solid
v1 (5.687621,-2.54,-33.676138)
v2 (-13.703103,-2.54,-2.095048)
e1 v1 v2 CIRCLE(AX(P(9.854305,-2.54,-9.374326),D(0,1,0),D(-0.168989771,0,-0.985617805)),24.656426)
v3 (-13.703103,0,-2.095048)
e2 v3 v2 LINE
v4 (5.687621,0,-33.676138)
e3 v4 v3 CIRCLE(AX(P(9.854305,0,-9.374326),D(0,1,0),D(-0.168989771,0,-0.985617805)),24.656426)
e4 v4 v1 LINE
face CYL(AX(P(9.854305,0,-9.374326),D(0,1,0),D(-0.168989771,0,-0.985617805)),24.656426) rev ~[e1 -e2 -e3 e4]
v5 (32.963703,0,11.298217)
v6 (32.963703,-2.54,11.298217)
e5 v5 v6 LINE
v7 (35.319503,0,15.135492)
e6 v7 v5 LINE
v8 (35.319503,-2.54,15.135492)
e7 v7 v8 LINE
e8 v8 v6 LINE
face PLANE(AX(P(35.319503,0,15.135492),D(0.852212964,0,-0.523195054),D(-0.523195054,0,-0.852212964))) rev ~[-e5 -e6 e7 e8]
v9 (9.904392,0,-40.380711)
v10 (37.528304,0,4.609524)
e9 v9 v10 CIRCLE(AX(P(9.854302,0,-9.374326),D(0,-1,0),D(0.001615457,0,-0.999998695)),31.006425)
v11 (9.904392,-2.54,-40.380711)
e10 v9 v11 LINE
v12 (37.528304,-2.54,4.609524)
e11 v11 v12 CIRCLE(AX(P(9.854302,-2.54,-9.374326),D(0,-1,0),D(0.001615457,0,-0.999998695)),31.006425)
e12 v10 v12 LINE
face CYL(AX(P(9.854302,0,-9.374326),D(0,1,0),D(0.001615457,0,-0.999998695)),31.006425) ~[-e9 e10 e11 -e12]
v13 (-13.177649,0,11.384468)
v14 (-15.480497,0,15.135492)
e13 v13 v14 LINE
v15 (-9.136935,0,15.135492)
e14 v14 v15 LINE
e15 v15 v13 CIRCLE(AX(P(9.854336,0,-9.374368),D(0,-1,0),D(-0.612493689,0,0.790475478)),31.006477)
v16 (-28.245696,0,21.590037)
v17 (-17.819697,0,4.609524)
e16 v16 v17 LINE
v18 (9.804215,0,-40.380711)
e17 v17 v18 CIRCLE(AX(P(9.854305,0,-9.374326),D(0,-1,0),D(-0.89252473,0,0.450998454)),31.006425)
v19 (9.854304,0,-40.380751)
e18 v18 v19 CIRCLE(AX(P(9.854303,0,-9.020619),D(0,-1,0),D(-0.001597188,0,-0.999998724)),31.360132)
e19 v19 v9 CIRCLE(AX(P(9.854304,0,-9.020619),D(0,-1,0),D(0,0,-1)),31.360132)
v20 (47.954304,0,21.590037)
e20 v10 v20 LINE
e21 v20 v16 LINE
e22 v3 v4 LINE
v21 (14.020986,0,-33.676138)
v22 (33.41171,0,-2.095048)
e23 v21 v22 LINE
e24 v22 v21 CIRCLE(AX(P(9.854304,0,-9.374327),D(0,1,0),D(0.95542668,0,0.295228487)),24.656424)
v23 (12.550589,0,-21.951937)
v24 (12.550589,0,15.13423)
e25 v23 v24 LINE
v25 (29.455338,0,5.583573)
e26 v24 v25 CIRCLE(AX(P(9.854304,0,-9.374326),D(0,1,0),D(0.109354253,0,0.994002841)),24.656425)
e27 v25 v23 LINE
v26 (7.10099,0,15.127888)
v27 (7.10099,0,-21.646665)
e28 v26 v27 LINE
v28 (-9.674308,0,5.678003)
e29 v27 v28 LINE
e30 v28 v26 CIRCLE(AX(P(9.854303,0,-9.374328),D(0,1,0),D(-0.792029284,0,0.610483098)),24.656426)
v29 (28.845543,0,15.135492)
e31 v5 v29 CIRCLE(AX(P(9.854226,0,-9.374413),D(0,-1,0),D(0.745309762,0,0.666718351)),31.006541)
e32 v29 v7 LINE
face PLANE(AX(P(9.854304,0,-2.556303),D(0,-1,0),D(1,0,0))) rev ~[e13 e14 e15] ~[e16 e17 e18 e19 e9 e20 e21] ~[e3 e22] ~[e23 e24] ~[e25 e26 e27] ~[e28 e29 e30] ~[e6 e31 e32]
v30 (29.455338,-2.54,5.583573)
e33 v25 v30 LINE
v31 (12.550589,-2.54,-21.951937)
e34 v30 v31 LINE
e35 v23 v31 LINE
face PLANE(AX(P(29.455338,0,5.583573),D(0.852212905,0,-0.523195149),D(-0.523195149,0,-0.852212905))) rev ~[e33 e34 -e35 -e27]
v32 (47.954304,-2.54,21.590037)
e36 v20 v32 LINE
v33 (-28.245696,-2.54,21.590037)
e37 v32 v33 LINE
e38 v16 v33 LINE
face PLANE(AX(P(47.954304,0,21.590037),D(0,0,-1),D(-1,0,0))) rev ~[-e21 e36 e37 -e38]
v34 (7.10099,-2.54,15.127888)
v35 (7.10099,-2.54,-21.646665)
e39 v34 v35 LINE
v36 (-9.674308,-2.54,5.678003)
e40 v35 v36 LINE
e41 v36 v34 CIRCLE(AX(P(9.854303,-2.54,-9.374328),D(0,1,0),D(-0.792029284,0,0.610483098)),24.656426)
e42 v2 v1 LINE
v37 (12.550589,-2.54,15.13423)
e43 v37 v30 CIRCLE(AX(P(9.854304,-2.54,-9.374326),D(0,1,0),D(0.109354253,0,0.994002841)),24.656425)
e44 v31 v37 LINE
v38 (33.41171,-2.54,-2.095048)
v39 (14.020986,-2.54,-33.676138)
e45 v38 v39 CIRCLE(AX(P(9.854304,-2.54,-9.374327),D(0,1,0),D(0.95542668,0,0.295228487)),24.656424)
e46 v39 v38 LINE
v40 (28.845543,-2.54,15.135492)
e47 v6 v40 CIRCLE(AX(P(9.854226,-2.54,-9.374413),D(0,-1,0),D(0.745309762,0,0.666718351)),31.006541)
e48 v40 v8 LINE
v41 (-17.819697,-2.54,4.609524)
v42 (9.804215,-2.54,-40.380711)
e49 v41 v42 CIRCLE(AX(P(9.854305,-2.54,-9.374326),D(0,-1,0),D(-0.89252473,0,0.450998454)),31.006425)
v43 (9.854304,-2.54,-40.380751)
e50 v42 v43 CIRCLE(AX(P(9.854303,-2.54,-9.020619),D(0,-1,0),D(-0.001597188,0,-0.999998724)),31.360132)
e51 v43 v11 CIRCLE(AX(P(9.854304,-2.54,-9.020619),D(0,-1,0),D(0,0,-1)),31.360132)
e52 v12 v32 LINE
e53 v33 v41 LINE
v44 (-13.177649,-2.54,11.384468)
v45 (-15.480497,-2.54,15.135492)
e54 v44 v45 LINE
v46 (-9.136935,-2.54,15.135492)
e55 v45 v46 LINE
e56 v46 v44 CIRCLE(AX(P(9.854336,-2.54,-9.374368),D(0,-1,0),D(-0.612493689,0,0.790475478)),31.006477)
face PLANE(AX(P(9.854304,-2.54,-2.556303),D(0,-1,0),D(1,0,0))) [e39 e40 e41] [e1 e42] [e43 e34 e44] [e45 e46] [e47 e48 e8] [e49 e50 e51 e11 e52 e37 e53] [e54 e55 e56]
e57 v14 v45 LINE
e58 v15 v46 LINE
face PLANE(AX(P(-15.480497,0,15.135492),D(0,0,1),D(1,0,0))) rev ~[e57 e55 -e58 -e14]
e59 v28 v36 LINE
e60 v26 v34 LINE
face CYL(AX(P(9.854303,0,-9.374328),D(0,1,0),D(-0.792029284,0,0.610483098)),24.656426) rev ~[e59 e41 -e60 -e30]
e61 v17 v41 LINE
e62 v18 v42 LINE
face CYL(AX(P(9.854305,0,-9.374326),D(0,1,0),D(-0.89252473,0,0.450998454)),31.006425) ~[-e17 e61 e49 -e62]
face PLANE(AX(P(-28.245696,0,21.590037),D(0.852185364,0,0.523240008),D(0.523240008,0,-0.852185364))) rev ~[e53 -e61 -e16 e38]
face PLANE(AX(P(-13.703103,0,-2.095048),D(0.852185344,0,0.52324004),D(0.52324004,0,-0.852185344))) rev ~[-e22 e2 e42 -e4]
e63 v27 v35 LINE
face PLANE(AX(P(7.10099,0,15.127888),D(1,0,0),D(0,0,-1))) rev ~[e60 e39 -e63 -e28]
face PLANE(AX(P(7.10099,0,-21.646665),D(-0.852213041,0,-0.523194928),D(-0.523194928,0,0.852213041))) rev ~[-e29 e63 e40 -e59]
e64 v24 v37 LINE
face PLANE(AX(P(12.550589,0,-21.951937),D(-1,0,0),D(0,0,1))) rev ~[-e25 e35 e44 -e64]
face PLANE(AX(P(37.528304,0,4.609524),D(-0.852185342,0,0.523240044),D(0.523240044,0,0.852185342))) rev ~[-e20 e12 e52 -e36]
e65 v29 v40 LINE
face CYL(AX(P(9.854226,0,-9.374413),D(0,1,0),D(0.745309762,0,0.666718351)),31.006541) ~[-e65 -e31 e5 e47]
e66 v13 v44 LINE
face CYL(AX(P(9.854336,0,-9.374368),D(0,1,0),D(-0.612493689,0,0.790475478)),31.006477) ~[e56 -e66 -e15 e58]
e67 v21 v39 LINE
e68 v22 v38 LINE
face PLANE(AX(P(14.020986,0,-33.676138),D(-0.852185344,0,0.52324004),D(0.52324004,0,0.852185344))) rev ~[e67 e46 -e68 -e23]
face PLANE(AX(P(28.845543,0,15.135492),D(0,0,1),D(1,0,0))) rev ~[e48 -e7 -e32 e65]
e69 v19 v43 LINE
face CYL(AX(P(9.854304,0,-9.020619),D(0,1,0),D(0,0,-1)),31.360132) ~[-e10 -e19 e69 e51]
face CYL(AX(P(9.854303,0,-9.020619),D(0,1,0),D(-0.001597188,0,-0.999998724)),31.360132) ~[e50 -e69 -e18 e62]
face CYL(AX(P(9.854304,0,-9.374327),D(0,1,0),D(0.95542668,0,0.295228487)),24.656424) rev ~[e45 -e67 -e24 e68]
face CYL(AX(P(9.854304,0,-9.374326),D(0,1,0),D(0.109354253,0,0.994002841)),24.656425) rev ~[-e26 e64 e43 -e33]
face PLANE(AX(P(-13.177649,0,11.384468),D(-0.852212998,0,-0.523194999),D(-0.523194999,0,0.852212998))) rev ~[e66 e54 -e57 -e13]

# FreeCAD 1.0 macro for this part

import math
import FreeCAD as App
import Part
import Sketcher
Q = App.Units.Quantity

doc = App.newDocument("Part")
body = doc.addObject("PartDesign::Body", "Body")

sketch1 = body.newObject("Sketcher::SketchObject", "Sketch")
sketch1.AttachmentSupport = (doc.getObject("XZ_Plane"), [""])
sketch1.MapMode = "FlatFace"
sketch1.addGeometry([
    Part.LineSegment(App.Vector(-28.245696, 21.590037, 0), App.Vector(-17.819697, 4.609524, 0)),
    Part.ArcOfCircle(Part.Circle(App.Vector(9.854305, -9.374326, 0), App.Vector(0, 0, 1), 31.006425), math.radians(153.192238), math.radians(269.907441)),
    Part.ArcOfCircle(Part.Circle(App.Vector(9.854303, -9.020619, 0), App.Vector(0, 0, 1), 31.360132), math.radians(-90.091512), math.radians(-89.999998)),
    Part.ArcOfCircle(Part.Circle(App.Vector(9.854304, -9.020619, 0), App.Vector(0, 0, 1), 31.360132), math.radians(-90), math.radians(-89.908488)),
    Part.ArcOfCircle(Part.Circle(App.Vector(9.854302, -9.374326, 0), App.Vector(0, 0, 1), 31.006425), math.radians(-89.907441), math.radians(26.807762)),
    Part.LineSegment(App.Vector(37.528304, 4.609524, 0), App.Vector(47.954304, 21.590037, 0)),
    Part.LineSegment(App.Vector(47.954304, 21.590037, 0), App.Vector(-28.245696, 21.590037, 0)),
    Part.LineSegment(App.Vector(-13.703103, -2.095048, 0), App.Vector(5.687621, -33.676138, 0)),
    Part.ArcOfCircle(Part.Circle(App.Vector(9.854305, -9.374326, 0), App.Vector(0, 0, 1), 24.656426), math.radians(162.828765), math.radians(260.270913)),
    Part.LineSegment(App.Vector(14.020986, -33.676138, 0), App.Vector(33.41171, -2.095048, 0)),
    Part.ArcOfCircle(Part.Circle(App.Vector(9.854304, -9.374327, 0), App.Vector(0, 0, 1), 24.656424), math.radians(-80.270917), math.radians(17.171239)),
    Part.LineSegment(App.Vector(7.10099, 15.127888, 0), App.Vector(7.10099, -21.646665, 0)),
    Part.LineSegment(App.Vector(7.10099, -21.646665, 0), App.Vector(-9.674308, 5.678003, 0)),
    Part.ArcOfCircle(Part.Circle(App.Vector(9.854303, -9.374328, 0), App.Vector(0, 0, 1), 24.656426), math.radians(96.411429), math.radians(142.375558)),
    Part.ArcOfCircle(Part.Circle(App.Vector(9.854336, -9.374368, 0), App.Vector(0, 0, 1), 31.006477), math.radians(127.770032), math.radians(137.971515)),
    Part.LineSegment(App.Vector(-13.177649, 11.384468, 0), App.Vector(-15.480497, 15.135492, 0)),
    Part.LineSegment(App.Vector(-15.480497, 15.135492, 0), App.Vector(-9.136935, 15.135492, 0)),
    Part.LineSegment(App.Vector(12.550589, -21.951937, 0), App.Vector(12.550589, 15.13423, 0)),
    Part.ArcOfCircle(Part.Circle(App.Vector(9.854304, -9.374326, 0), App.Vector(0, 0, 1), 24.656425), math.radians(37.3479), math.radians(83.721908)),
    Part.LineSegment(App.Vector(29.455338, 5.583573, 0), App.Vector(12.550589, -21.951937, 0)),
    Part.ArcOfCircle(Part.Circle(App.Vector(9.854226, -9.374413, 0), App.Vector(0, 0, 1), 31.006541), math.radians(41.814288), math.radians(52.229952)),
    Part.LineSegment(App.Vector(28.845543, 15.135492, 0), App.Vector(35.319503, 15.135492, 0)),
    Part.LineSegment(App.Vector(35.319503, 15.135492, 0), App.Vector(32.963703, 11.298217, 0)),
], False)
sketch1.addConstraint([
    Sketcher.Constraint("Coincident", 0, 2, 1, 1),
    Sketcher.Constraint("Coincident", 1, 2, 2, 1),
    Sketcher.Constraint("Tangent", 2, 2, 3, 1),
    Sketcher.Constraint("Coincident", 3, 2, 4, 1),
    Sketcher.Constraint("Coincident", 4, 2, 5, 1),
    Sketcher.Constraint("Coincident", 5, 2, 6, 1),
    Sketcher.Constraint("Coincident", 6, 2, 0, 1),
    Sketcher.Constraint("Coincident", 7, 1, 8, 1),
    Sketcher.Constraint("Coincident", 8, 2, 7, 2),
    Sketcher.Constraint("Coincident", 9, 1, 10, 1),
    Sketcher.Constraint("Coincident", 10, 2, 9, 2),
    Sketcher.Constraint("Coincident", 11, 2, 12, 1),
    Sketcher.Constraint("Coincident", 12, 2, 13, 2),
    Sketcher.Constraint("Coincident", 13, 1, 11, 1),
    Sketcher.Constraint("Coincident", 14, 2, 15, 1),
    Sketcher.Constraint("Coincident", 15, 2, 16, 1),
    Sketcher.Constraint("Coincident", 16, 2, 14, 1),
    Sketcher.Constraint("Coincident", 17, 2, 18, 2),
    Sketcher.Constraint("Coincident", 18, 1, 19, 1),
    Sketcher.Constraint("Coincident", 19, 2, 17, 1),
    Sketcher.Constraint("Coincident", 20, 2, 21, 1),
    Sketcher.Constraint("Coincident", 21, 2, 22, 1),
    Sketcher.Constraint("Coincident", 22, 2, 20, 1),
    Sketcher.Constraint("Horizontal", 6),
    Sketcher.Constraint("Vertical", 11),
    Sketcher.Constraint("Horizontal", 16),
    Sketcher.Constraint("Vertical", 17),
    Sketcher.Constraint("Horizontal", 21),
    Sketcher.Constraint("Coincident", 4, 3, 1, 3),
    Sketcher.Constraint("Coincident", 8, 3, 1, 3),
    Sketcher.Constraint("Coincident", 10, 3, 1, 3),
    Sketcher.Constraint("Coincident", 13, 3, 1, 3),
    Sketcher.Constraint("Coincident", 18, 3, 1, 3),
    Sketcher.Constraint("Equal", 2, 3),
    Sketcher.Constraint("Equal", 8, 10),
    Sketcher.Constraint("Equal", 10, 13),
    Sketcher.Constraint("Equal", 13, 18),
    Sketcher.Constraint("Parallel", 0, 7),
    Sketcher.Constraint("Parallel", 5, 9),
    Sketcher.Constraint("Parallel", 12, 15),
    Sketcher.Constraint("Parallel", 19, 22),
    Sketcher.Constraint("Horizontal", 1, 2, 3, 2),
    Sketcher.Constraint("Horizontal", 0, 2, 4, 2),
    Sketcher.Constraint("Horizontal", 8, 2, 9, 1),
    Sketcher.Constraint("Horizontal", 7, 1, 10, 2),
    Sketcher.Constraint("Horizontal", 16, 2, 20, 2),
    Sketcher.Constraint("Vertical", 1, 3, 2, 3),
    Sketcher.Constraint("Vertical", 18, 3, 2, 2),
    Sketcher.Constraint("DistanceX", 6, 2, 6, 1, Q("3 in")),
    Sketcher.Constraint("Radius", 2, Q("31.360132 mm")),
    Sketcher.Constraint("Radius", 20, Q("31.006541 mm")),
    Sketcher.Constraint("Radius", 1, Q("31.006425 mm")),
    Sketcher.Constraint("Radius", 8, Q("24.656426 mm")),
    Sketcher.Constraint("Radius", 14, Q("31.006477 mm")),
    Sketcher.Constraint("Distance", 19, Q("32.3106 mm")),
    Sketcher.Constraint("DistanceX", 21, 1, 21, 2, Q("6.47396 mm")),
    Sketcher.Constraint("DistanceX", 0, 2, 2, 3, Q("27.674 mm")),
    Sketcher.Constraint("DistanceY", 1, 2, 20, 3, Q("31.006298 mm")),
    Sketcher.Constraint("DistanceX", 12, 2, 13, 1, Q("16.775298 mm")),
    Sketcher.Constraint("DistanceX", 0, 2, 15, 2, Q("2.3392 mm")),
    Sketcher.Constraint("DistanceX", 13, 1, 17, 2, Q("5.449599 mm")),
    Sketcher.Constraint("DistanceY", 9, 1, 19, 2, Q("11.724201 mm")),
    Sketcher.Constraint("DistanceX", 21, 2, 4, 2, Q("2.208801 mm")),
    Sketcher.Constraint("DistanceX", 22, 2, 21, 2, Q("2.3558 mm")),
    Sketcher.Constraint("Distance", 12, Q("32.063189 mm")),
    Sketcher.Constraint("Distance", 15, Q("4.40151 mm")),
    Sketcher.Constraint("Distance", 22, Q("4.502718 mm")),
    Sketcher.Constraint("DistanceX", 16, 1, 16, 2, Q("6.343562 mm")),
    Sketcher.Constraint("DistanceY", 11, 2, 11, 1, Q("36.774553 mm")),
    Sketcher.Constraint("DistanceY", 2, 3, -1, 1, Q("9.020619 mm")),
    Sketcher.Constraint("DistanceY", 1, 2, -1, 1, Q("40.380711 mm")),
    Sketcher.Constraint("DistanceX", -1, 1, 3, 2, Q("9.904392 mm")),
    Sketcher.Constraint("DistanceX", -1, 1, 10, 2, Q("33.41171 mm")),
])
pad1 = body.newObject("PartDesign::Pad", "Pad")
pad1.Profile = sketch1
pad1.Length = Q("0.1 in")

doc.recompute()
